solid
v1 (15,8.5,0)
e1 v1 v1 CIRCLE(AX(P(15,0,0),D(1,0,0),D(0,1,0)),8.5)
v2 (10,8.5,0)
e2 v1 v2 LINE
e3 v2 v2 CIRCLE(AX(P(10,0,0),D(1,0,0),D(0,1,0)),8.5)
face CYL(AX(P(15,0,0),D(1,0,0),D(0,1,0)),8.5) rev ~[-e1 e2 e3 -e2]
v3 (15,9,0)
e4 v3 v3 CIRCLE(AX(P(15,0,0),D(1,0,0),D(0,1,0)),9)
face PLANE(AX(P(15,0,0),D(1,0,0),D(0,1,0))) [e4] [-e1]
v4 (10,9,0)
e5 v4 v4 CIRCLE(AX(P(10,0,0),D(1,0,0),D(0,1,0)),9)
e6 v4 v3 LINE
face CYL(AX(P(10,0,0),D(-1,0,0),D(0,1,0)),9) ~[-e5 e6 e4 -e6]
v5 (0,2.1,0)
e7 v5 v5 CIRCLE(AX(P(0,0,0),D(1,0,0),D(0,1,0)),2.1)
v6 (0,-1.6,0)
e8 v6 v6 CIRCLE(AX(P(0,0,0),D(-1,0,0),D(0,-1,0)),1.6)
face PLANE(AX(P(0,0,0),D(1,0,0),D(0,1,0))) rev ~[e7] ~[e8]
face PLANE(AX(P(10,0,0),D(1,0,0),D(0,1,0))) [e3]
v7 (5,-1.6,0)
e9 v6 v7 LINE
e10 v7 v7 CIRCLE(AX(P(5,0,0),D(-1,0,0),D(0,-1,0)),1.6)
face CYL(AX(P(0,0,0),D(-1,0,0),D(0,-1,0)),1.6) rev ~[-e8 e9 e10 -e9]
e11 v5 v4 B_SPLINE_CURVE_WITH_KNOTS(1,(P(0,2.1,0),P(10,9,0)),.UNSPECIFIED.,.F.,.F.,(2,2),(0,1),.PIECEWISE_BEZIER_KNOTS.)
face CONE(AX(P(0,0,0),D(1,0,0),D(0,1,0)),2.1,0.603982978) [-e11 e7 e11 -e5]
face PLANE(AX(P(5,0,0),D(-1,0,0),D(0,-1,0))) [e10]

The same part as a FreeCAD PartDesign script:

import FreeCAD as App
import Part
import Sketcher

doc = App.newDocument("Part")
body = doc.addObject("PartDesign::Body", "Body")

sketch1 = doc.addObject("Sketcher::SketchObject", "Sketch")
body.addObject(sketch1)
sketch1.AttachmentSupport = (doc.YZ_Plane, [""])
sketch1.MapMode = "FlatFace"
sketch1.addGeometry(Part.Circle(App.Vector(0, 0, 0), App.Vector(0, 0, 1), 2.1), False)
sketch1.addConstraint(Sketcher.Constraint("Coincident", 0, 3, -1, 1))
sketch1.addConstraint(Sketcher.Constraint("Diameter", 0, 4.2))

sketch2 = doc.addObject("Sketcher::SketchObject", "Sketch001")
body.addObject(sketch2)
sketch2.AttachmentSupport = (doc.YZ_Plane, [""])
sketch2.MapMode = "FlatFace"
sketch2.AttachmentOffset = App.Placement(App.Vector(0, 0, 10), App.Rotation())
sketch2.addGeometry(Part.Circle(App.Vector(0, 0, 0), App.Vector(0, 0, 1), 9), False)
sketch2.addConstraint(Sketcher.Constraint("Coincident", 0, 3, -1, 1))
sketch2.addConstraint(Sketcher.Constraint("Diameter", 0, 18.0))

additiveloft = doc.addObject("PartDesign::AdditiveLoft", "AdditiveLoft")
body.addObject(additiveloft)
additiveloft.Profile = sketch1
additiveloft.Sections = [sketch2]

sketch3 = doc.addObject("Sketcher::SketchObject", "Sketch002")
body.addObject(sketch3)
sketch3.AttachmentSupport = (doc.YZ_Plane, [""])
sketch3.MapMode = "FlatFace"
sketch3.addGeometry(Part.Circle(App.Vector(0, 0, 0), App.Vector(0, 0, 1), 1.6), False)
sketch3.addConstraint(Sketcher.Constraint("Coincident", 0, 3, -1, 1))
sketch3.addConstraint(Sketcher.Constraint("Diameter", 0, 3.2))
pocket1 = doc.addObject("PartDesign::Pocket", "Pocket")
body.addObject(pocket1)
pocket1.Profile = sketch3
pocket1.Length = 5
pocket1.Reversed = True

sketch4 = doc.addObject("Sketcher::SketchObject", "Sketch003")
body.addObject(sketch4)
sketch4.AttachmentSupport = (doc.YZ_Plane, [""])
sketch4.MapMode = "FlatFace"
sketch4.AttachmentOffset = App.Placement(App.Vector(0, 0, 10), App.Rotation())
sketch4.addGeometry(Part.Circle(App.Vector(0, 0, 0), App.Vector(0, 0, 1), 9), False)
sketch4.addConstraint(Sketcher.Constraint("Coincident", 0, 3, -1, 1))
sketch4.addConstraint(Sketcher.Constraint("Diameter", 0, 18.0))
pad1 = doc.addObject("PartDesign::Pad", "Pad")
body.addObject(pad1)
pad1.Profile = sketch4
pad1.Length = 5

sketch5 = doc.addObject("Sketcher::SketchObject", "Sketch004")
body.addObject(sketch5)
sketch5.AttachmentSupport = (doc.YZ_Plane, [""])
sketch5.MapMode = "FlatFace"
sketch5.AttachmentOffset = App.Placement(App.Vector(0, 0, 15), App.Rotation())
sketch5.addGeometry(Part.Circle(App.Vector(0, 0, 0), App.Vector(0, 0, 1), 8), False)
sketch5.addConstraint(Sketcher.Constraint("Coincident", 0, 3, -1, 1))
sketch5.addConstraint(Sketcher.Constraint("Diameter", 0, 17.0))
pocket2 = doc.addObject("PartDesign::Pocket", "Pocket001")
body.addObject(pocket2)
pocket2.Profile = sketch5
pocket2.Length = 5

doc.recompute()
